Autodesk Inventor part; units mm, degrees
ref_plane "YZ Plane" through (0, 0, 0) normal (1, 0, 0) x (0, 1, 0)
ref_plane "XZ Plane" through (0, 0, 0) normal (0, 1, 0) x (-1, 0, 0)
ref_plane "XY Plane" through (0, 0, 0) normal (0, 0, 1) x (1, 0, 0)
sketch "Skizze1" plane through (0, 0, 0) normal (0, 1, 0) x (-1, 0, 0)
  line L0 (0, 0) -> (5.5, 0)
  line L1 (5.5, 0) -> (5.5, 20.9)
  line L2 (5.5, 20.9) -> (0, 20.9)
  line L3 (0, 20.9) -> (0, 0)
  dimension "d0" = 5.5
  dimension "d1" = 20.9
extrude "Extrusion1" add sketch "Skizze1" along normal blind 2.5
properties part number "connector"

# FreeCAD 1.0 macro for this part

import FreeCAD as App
import Part
import Sketcher
from FreeCAD import Vector


def add_polygon(sketch, points):
    """Adds a closed chain of lines whose ends are joined by coincident constraints."""
    first, n = sketch.GeometryCount, len(points)
    for a, b in zip(points, points[1:] + points[:1]):
        sketch.addGeometry(Part.LineSegment(App.Vector(*a, 0), App.Vector(*b, 0)), False)
    for i in range(n):
        sketch.addConstraint(Sketcher.Constraint("Coincident", first + i, 2, first + (i + 1) % n, 1))

doc = App.newDocument("Part")
body = doc.addObject("PartDesign::Body", "Body")

# Sketch on XZ plane
sketch1 = body.newObject("Sketcher::SketchObject", "Sketch")
sketch1.AttachmentSupport = (doc.getObject("XZ_Plane"), [""])
sketch1.MapMode = "FlatFace"
add_polygon(sketch1, [(0, 21), (0, 0), (-6, 0), (-6, 21)])  # lines 0-3
sketch1.addConstraint(Sketcher.Constraint("Vertical", 0))
sketch1.addConstraint(Sketcher.Constraint("Horizontal", 1))
sketch1.addConstraint(Sketcher.Constraint("Vertical", 2))
sketch1.addConstraint(Sketcher.Constraint("Horizontal", 3))
sketch1.addConstraint(Sketcher.Constraint("Coincident", 0, 2, -1, 1))
sketch1.addConstraint(Sketcher.Constraint("DistanceX", 1, 2, 1, 1, 5.5))
sketch1.addConstraint(Sketcher.Constraint("DistanceY", 0, 2, 0, 1, 20.9))
pad1 = body.newObject("PartDesign::Pad", "Pad")
pad1.Profile = sketch1
pad1.Length = 2.5
pad1.Reversed = True

doc.recompute()
